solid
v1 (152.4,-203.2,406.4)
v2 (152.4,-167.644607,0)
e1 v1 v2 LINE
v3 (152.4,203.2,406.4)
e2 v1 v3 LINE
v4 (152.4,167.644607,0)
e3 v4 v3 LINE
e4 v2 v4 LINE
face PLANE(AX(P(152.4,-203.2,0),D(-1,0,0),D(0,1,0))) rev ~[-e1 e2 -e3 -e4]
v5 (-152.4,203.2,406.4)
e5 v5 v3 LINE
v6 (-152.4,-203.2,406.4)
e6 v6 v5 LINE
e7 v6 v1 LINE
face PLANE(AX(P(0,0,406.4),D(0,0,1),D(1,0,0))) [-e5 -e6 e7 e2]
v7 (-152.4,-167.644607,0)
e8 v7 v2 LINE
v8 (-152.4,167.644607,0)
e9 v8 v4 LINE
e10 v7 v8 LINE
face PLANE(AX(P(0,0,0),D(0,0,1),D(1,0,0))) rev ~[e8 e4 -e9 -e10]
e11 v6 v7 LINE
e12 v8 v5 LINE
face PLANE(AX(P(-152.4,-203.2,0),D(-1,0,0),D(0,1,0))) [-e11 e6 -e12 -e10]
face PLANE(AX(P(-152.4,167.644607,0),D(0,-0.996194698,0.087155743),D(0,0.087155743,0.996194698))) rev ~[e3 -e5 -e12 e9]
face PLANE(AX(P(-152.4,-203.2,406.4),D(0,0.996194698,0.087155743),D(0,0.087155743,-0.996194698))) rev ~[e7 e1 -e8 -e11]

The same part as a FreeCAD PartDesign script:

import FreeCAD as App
import Part
import Sketcher
Q = App.Units.Quantity

doc = App.newDocument("Part")
params = doc.addObject("Spreadsheet::Sheet", "Params")
for row, (alias, value) in enumerate([
    ("sketch1_width", "12 in"),
    ("sketch1_height", "16 in"),
    ("pad1_length", "16 in"),
    ("sketch2_height", "16 in"),
    ("pocket1_length", "24 in"),
    ("sketch3_height", "16 in"),
    ("pocket2_length", "24 in"),
], start=1):
    params.set(f"A{row}", alias)
    params.set(f"B{row}", "=" + value)
    params.setAlias(f"B{row}", alias)

body = doc.addObject("PartDesign::Body", "Body")

# Sketch on XY plane
sketch1 = body.newObject("Sketcher::SketchObject", "Sketch")
sketch1.AttachmentSupport = (doc.getObject("XY_Plane"), [""])
sketch1.MapMode = "FlatFace"
sketch1.addGeometry([
    Part.LineSegment(App.Vector(-152.4, 203.2, 0), App.Vector(-152.4, -203.2, 0)),
    Part.LineSegment(App.Vector(-152.4, -203.2, 0), App.Vector(152.4, -203.2, 0)),
    Part.LineSegment(App.Vector(152.4, -203.2, 0), App.Vector(152.4, 203.2, 0)),
    Part.LineSegment(App.Vector(152.4, 203.2, 0), App.Vector(-152.4, 203.2, 0)),
], False)
sketch1.addConstraint([
    Sketcher.Constraint("Coincident", 0, 2, 1, 1),
    Sketcher.Constraint("Coincident", 1, 2, 2, 1),
    Sketcher.Constraint("Coincident", 2, 2, 3, 1),
    Sketcher.Constraint("Coincident", 3, 2, 0, 1),
    Sketcher.Constraint("Vertical", 0),
    Sketcher.Constraint("Horizontal", 1),
    Sketcher.Constraint("Vertical", 2),
    Sketcher.Constraint("Horizontal", 3),
    Sketcher.Constraint("Symmetric", 0, 2, 2, 2, -1, 1),
    Sketcher.Constraint("DistanceX", 1, 1, 1, 2, Q("12 in")),
    Sketcher.Constraint("DistanceY", 0, 2, 0, 1, Q("16 in")),
])
sketch1.setExpression("Constraints[9]", "Params.sketch1_width")
sketch1.setExpression("Constraints[10]", "Params.sketch1_height")
pad1 = body.newObject("PartDesign::Pad", "Pad")
pad1.Profile = sketch1
pad1.setExpression("Length", "Params.pad1_length")

# Sketch on YZ plane
sketch2 = body.newObject("Sketcher::SketchObject", "Sketch001")
sketch2.AttachmentSupport = (doc.getObject("YZ_Plane"), [""])
sketch2.MapMode = "FlatFace"
sketch2.AttachmentOffset = App.Placement(App.Vector(0, 0, -6 * 25.4), App.Rotation())
sketch2.addGeometry([
    Part.LineSegment(App.Vector(167.644607, 0, 0), App.Vector(203.2, 406.4, 0)),
    Part.LineSegment(App.Vector(203.2, 406.4, 0), App.Vector(203.2, 0, 0)),
    Part.LineSegment(App.Vector(203.2, 0, 0), App.Vector(167.644607, 0, 0)),
], False)
sketch2.addConstraint([
    Sketcher.Constraint("Coincident", 0, 2, 1, 1),
    Sketcher.Constraint("Coincident", 1, 2, 2, 1),
    Sketcher.Constraint("Coincident", 2, 2, 0, 1),
    Sketcher.Constraint("Vertical", 1),
    Sketcher.Constraint("Horizontal", 2),
    Sketcher.Constraint("PointOnObject", 1, 2, -1),
    Sketcher.Constraint("DistanceY", 1, 2, 1, 1, Q("16 in")),
    Sketcher.Constraint("DistanceX", -1, 1, 0, 2, Q("8 in")),
    Sketcher.Constraint("Angle", 0, Q("85 deg")),
])
sketch2.setExpression("Constraints[6]", "Params.sketch2_height")
pocket1 = body.newObject("PartDesign::Pocket", "Pocket")
pocket1.Profile = sketch2
pocket1.setExpression("Length", "Params.pocket1_length")
pocket1.Reversed = True

# Sketch on YZ plane
sketch3 = body.newObject("Sketcher::SketchObject", "Sketch002")
sketch3.AttachmentSupport = (doc.getObject("YZ_Plane"), [""])
sketch3.MapMode = "FlatFace"
sketch3.AttachmentOffset = App.Placement(App.Vector(0, 0, -6 * 25.4), App.Rotation())
sketch3.addGeometry([
    Part.LineSegment(App.Vector(-203.2, 0, 0), App.Vector(-203.2, 406.4, 0)),
    Part.LineSegment(App.Vector(-203.2, 406.4, 0), App.Vector(-167.644607, 0, 0)),
    Part.LineSegment(App.Vector(-167.644607, 0, 0), App.Vector(-203.2, 0, 0)),
], False)
sketch3.addConstraint([
    Sketcher.Constraint("Coincident", 0, 2, 1, 1),
    Sketcher.Constraint("Coincident", 1, 2, 2, 1),
    Sketcher.Constraint("Coincident", 2, 2, 0, 1),
    Sketcher.Constraint("Vertical", 0),
    Sketcher.Constraint("Horizontal", 2),
    Sketcher.Constraint("PointOnObject", 1, 2, -1),
    Sketcher.Constraint("DistanceY", 0, 1, 0, 2, Q("16 in")),
    Sketcher.Constraint("DistanceX", 0, 2, -1, 1, Q("8 in")),
    Sketcher.Constraint("Angle", 1, Q("-85 deg")),
])
sketch3.setExpression("Constraints[6]", "Params.sketch3_height")
pocket2 = body.newObject("PartDesign::Pocket", "Pocket001")
pocket2.Profile = sketch3
pocket2.setExpression("Length", "Params.pocket2_length")
pocket2.Reversed = True

doc.recompute()
